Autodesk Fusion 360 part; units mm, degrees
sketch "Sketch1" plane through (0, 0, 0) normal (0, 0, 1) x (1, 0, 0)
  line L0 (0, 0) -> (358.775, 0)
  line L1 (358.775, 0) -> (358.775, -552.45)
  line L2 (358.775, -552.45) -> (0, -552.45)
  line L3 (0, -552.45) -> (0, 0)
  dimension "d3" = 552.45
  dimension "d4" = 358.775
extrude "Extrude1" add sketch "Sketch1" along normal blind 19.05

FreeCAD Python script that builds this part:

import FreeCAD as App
import Part
import Sketcher
Q = App.Units.Quantity


def add_polygon(sketch, points):
    """Adds a closed chain of lines whose ends are joined by coincident constraints."""
    first, n = sketch.GeometryCount, len(points)
    for a, b in zip(points, points[1:] + points[:1]):
        sketch.addGeometry(Part.LineSegment(App.Vector(*a, 0), App.Vector(*b, 0)), False)
    for i in range(n):
        sketch.addConstraint(Sketcher.Constraint("Coincident", first + i, 2, first + (i + 1) % n, 1))

doc = App.newDocument("Part")
body = doc.addObject("PartDesign::Body", "Body")

sketch1 = body.newObject("Sketcher::SketchObject", "Sketch")
sketch1.AttachmentSupport = (doc.getObject("XY_Plane"), [""])
sketch1.MapMode = "FlatFace"
add_polygon(sketch1, [(358.775, 0), (0, 0), (0, -552.45), (358.775, -552.45)])
sketch1.addConstraint([
    Sketcher.Constraint("Horizontal", 0),
    Sketcher.Constraint("Vertical", 1),
    Sketcher.Constraint("Horizontal", 2),
    Sketcher.Constraint("Vertical", 3),
    Sketcher.Constraint("Coincident", 0, 2, -1, 1),
    Sketcher.Constraint("DistanceY", 1, 2, 1, 1, Q("21.75 in")),
    Sketcher.Constraint("DistanceX", 0, 2, 0, 1, Q("14.125 in")),
])
pad1 = body.newObject("PartDesign::Pad", "Pad")
pad1.Profile = sketch1
pad1.Length = Q("0.75 in")

doc.recompute()
